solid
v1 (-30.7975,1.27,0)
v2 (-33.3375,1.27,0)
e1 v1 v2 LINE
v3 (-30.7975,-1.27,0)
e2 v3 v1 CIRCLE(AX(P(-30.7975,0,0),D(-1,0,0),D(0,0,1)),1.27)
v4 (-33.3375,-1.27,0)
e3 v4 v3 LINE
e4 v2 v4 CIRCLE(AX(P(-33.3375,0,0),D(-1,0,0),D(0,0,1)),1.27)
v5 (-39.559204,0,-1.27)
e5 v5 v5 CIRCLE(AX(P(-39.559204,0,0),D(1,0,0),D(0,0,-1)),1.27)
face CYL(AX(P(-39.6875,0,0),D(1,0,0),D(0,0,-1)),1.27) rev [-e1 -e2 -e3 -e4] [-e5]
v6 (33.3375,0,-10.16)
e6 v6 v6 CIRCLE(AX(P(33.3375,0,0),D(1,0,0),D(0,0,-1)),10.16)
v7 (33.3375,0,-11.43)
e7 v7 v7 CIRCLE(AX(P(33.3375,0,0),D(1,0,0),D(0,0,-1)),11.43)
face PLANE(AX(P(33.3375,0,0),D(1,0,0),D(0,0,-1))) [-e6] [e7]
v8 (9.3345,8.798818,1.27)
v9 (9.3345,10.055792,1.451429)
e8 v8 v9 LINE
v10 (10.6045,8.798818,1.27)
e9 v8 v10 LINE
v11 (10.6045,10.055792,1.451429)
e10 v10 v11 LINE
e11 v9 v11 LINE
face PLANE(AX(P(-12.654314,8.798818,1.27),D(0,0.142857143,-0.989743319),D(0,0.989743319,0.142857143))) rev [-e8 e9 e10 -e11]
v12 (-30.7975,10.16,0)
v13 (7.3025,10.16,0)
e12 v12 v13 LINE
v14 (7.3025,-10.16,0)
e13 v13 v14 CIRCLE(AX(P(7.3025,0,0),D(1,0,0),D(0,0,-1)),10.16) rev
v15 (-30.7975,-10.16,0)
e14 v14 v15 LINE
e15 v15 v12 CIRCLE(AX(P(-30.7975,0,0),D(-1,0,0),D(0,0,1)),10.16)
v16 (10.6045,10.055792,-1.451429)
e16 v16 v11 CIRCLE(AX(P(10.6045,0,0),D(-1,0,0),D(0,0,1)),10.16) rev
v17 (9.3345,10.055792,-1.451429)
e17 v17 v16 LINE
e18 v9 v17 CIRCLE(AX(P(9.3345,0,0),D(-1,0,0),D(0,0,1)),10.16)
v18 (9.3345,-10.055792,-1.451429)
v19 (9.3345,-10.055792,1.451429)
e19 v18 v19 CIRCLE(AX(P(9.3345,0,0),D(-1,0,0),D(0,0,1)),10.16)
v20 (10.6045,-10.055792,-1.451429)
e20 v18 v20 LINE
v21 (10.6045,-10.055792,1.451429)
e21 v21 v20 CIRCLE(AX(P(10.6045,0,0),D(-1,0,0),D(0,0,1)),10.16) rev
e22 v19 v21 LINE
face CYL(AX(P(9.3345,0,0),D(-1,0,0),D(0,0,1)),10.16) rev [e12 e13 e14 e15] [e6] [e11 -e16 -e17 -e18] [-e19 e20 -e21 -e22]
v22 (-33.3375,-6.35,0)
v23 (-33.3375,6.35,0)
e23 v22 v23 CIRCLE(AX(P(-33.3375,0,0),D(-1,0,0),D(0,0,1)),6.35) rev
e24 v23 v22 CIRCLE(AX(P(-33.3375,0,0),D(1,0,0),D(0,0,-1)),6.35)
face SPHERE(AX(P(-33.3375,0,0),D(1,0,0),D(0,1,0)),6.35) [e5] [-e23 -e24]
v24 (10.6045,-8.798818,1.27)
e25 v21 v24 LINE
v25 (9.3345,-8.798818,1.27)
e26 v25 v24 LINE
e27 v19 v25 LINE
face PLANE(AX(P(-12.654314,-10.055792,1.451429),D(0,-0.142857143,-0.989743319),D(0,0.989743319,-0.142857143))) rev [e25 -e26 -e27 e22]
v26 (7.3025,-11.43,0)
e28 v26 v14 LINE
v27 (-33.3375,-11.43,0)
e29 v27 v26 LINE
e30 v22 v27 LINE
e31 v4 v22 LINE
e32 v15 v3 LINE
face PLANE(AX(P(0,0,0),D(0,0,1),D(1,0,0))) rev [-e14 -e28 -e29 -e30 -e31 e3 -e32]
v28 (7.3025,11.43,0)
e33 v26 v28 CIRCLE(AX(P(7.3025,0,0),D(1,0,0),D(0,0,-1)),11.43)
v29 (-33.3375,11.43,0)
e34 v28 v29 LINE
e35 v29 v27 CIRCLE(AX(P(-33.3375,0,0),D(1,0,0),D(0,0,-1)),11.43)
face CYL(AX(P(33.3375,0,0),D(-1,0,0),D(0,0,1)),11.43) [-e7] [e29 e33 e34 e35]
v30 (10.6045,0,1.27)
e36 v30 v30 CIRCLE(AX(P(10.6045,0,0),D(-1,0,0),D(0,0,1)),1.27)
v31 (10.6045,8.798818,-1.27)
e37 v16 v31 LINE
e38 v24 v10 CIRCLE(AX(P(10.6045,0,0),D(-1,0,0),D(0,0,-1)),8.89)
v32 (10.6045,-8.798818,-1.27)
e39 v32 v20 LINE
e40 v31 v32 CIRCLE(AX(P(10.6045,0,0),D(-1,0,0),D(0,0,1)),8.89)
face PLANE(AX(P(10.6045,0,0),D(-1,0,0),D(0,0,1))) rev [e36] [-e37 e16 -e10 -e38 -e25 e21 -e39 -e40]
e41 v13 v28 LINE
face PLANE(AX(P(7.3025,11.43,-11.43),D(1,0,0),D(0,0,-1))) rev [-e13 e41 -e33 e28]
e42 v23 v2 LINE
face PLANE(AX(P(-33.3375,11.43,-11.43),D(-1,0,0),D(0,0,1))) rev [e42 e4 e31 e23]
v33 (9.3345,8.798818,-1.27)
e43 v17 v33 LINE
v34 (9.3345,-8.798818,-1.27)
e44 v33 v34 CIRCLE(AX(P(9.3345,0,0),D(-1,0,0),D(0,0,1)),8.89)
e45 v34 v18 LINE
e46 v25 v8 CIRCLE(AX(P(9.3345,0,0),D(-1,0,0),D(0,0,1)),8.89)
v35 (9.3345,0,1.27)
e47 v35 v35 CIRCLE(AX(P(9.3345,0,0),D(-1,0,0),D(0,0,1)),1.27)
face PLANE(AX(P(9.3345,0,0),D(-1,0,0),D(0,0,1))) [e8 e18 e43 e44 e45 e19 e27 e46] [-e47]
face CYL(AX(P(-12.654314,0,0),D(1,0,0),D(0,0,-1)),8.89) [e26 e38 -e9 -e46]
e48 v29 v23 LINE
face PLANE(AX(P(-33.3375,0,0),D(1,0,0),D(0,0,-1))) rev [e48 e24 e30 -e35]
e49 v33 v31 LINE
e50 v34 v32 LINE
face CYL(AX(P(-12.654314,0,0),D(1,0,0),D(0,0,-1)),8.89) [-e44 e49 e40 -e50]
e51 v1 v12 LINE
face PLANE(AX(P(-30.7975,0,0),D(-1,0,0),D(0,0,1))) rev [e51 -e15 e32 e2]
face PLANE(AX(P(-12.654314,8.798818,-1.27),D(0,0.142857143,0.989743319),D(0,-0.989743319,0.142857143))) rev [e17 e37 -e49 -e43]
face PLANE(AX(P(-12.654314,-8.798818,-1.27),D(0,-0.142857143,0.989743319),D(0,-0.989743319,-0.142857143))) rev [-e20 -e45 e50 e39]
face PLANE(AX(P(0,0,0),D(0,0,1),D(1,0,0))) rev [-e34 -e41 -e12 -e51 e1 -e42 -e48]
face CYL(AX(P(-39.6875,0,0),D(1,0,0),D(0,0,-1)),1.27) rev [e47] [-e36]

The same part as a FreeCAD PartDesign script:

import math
import FreeCAD as App
import Part
import Sketcher

V = App.Vector
Q = App.Units.Quantity

doc = App.newDocument("Part")
body = doc.addObject("PartDesign::Body", "Body")

# Sketch on YZ plane
sketch1 = doc.addObject("Sketcher::SketchObject", "Sketch")
body.addObject(sketch1)
sketch1.AttachmentSupport = (doc.YZ_Plane, [""])
sketch1.MapMode = "FlatFace"
sketch1.addGeometry(Part.Circle(V(0, 0, 0), V(0, 0, 1), 11.43), False)
sketch1.addConstraint([
    Sketcher.Constraint("Coincident", 0, 3, -1, 1),
    Sketcher.Constraint("Diameter", 0, Q("0.9 in")),
])
pad1 = doc.addObject("PartDesign::Pad", "Pad")
body.addObject(pad1)
pad1.Profile = sketch1
pad1.Length = Q("2.625 in")
pad1.Midplane = True

# Sketch on XY plane
sketch2 = doc.addObject("Sketcher::SketchObject", "Sketch001")
body.addObject(sketch2)
sketch2.AttachmentSupport = (doc.XY_Plane, [""])
sketch2.MapMode = "FlatFace"
sketch2.addGeometry([
    Part.LineSegment(V(-33.3375, 0, 0), V(-33.3375, 6.35, 0)),
    Part.ArcOfCircle(Part.Circle(V(-33.3375, 0, 0), V(0, 0, 1), 6.35), math.radians(90), math.radians(180)),
    Part.LineSegment(V(-39.6875, 0, 0), V(-33.3375, 0, 0)),
], False)
sketch2.addConstraint([
    Sketcher.Constraint("Coincident", 0, 2, 1, 1),
    Sketcher.Constraint("Coincident", 1, 2, 2, 1),
    Sketcher.Constraint("Coincident", 2, 2, 0, 1),
    Sketcher.Constraint("Vertical", 0),
    Sketcher.Constraint("Horizontal", 2),
    Sketcher.Constraint("Coincident", 2, 2, 1, 3),
    Sketcher.Constraint("PointOnObject", 1, 3, -1),
    Sketcher.Constraint("Radius", 1, Q("0.25 in")),
    Sketcher.Constraint("DistanceX", 1, 3, -1, 1, Q("1.3125 in")),
])
revolution = doc.addObject("PartDesign::Revolution", "Revolution")
body.addObject(revolution)
revolution.Profile = sketch2
revolution.ReferenceAxis = (sketch2, ["H_Axis"])
revolution.Angle = 360

# Sketch on YZ plane
sketch3 = doc.addObject("Sketcher::SketchObject", "Sketch002")
body.addObject(sketch3)
sketch3.AttachmentSupport = (doc.YZ_Plane, [""])
sketch3.MapMode = "FlatFace"
sketch3.AttachmentOffset = App.Placement(V(0, 0, -1.3125 * 25.4), App.Rotation())
sketch3.addGeometry(Part.Circle(V(0, 0, 0), V(0, 0, 1), 1.27), False)
sketch3.addConstraint([
    Sketcher.Constraint("Coincident", 0, 3, -1, 1),
    Sketcher.Constraint("Diameter", 0, Q("0.1 in")),
])
pocket1 = doc.addObject("PartDesign::Pocket", "Pocket")
body.addObject(pocket1)
pocket1.Profile = sketch3
pocket1.Type = "ThroughAll"
pocket1.Midplane = True

# Sketch on YZ plane
sketch4 = doc.addObject("Sketcher::SketchObject", "Sketch003")
body.addObject(sketch4)
sketch4.AttachmentSupport = (doc.YZ_Plane, [""])
sketch4.MapMode = "FlatFace"
sketch4.AttachmentOffset = App.Placement(V(0, 0, -1.2125 * 25.4), App.Rotation())
sketch4.addGeometry(Part.Circle(V(0, 0, 0), V(0, 0, 1), 10.16), False)
sketch4.addConstraint([
    Sketcher.Constraint("Coincident", 0, 3, -1, 1),
    Sketcher.Constraint("Diameter", 0, Q("0.8 in")),
])
pocket2 = doc.addObject("PartDesign::Pocket", "Pocket001")
body.addObject(pocket2)
pocket2.Profile = sketch4
pocket2.Length = Q("1.58 in")
pocket2.Reversed = True

# Sketch on YZ plane
sketch5 = doc.addObject("Sketcher::SketchObject", "Sketch004")
body.addObject(sketch5)
sketch5.AttachmentSupport = (doc.YZ_Plane, [""])
sketch5.MapMode = "FlatFace"
sketch5.AttachmentOffset = App.Placement(V(0, 0, 0.4175 * 25.4), App.Rotation())
sketch5.addGeometry(Part.Circle(V(0, 0, 0), V(0, 0, 1), 10.16), False)
sketch5.addConstraint([
    Sketcher.Constraint("Coincident", 0, 3, -1, 1),
    Sketcher.Constraint("Diameter", 0, Q("0.8 in")),
])
pocket3 = doc.addObject("PartDesign::Pocket", "Pocket002")
body.addObject(pocket3)
pocket3.Profile = sketch5
pocket3.Length = Q("0.895 in")
pocket3.Reversed = True

# Sketch on YZ plane
sketch6 = doc.addObject("Sketcher::SketchObject", "Sketch005")
body.addObject(sketch6)
sketch6.AttachmentSupport = (doc.YZ_Plane, [""])
sketch6.MapMode = "FlatFace"
sketch6.AttachmentOffset = App.Placement(V(0, 0, 0.3675 * 25.4), App.Rotation())
sketch6.addGeometry([
    Part.LineSegment(V(8.798818, 1.27, 0), V(10.055792, 1.451429, 0)),  # 0
    Part.ArcOfCircle(Part.Circle(V(0, 0, 0), V(0, 0, 1), 10.16), math.radians(8.213211), math.radians(171.786789)),  # 1
    Part.LineSegment(V(-10.055792, 1.451429, 0), V(-8.798818, 1.27, 0)),  # 2
    Part.ArcOfCircle(Part.Circle(V(0, 0, 0), V(0, 0, 1), 8.89), math.radians(8.213211), math.radians(171.786789)),  # 3
    Part.LineSegment(V(10.055792, -1.451429, 0), V(8.798818, -1.27, 0)),  # 4
    Part.ArcOfCircle(Part.Circle(V(0, 0, 0), V(0, 0, 1), 8.89), math.radians(-171.786789), math.radians(-8.213211)),  # 5
    Part.LineSegment(V(-8.798818, -1.27, 0), V(-10.055792, -1.451429, 0)),  # 6
    Part.ArcOfCircle(Part.Circle(V(0, 0, 0), V(0, 0, 1), 10.16), math.radians(-171.786789), math.radians(-8.213211)),  # 7
], False)
sketch6.addConstraint([
    Sketcher.Constraint("Coincident", 0, 2, 1, 1),
    Sketcher.Constraint("Coincident", 1, 2, 2, 1),
    Sketcher.Constraint("Coincident", 2, 2, 3, 2),
    Sketcher.Constraint("Coincident", 3, 1, 0, 1),
    Sketcher.Constraint("Coincident", 4, 2, 5, 2),
    Sketcher.Constraint("Coincident", 5, 1, 6, 1),
    Sketcher.Constraint("Coincident", 6, 2, 7, 1),
    Sketcher.Constraint("Coincident", 7, 2, 4, 1),
    Sketcher.Constraint("Coincident", 1, 3, -1, 1),
    Sketcher.Constraint("Coincident", 3, 3, -1, 1),
    Sketcher.Constraint("Coincident", 5, 3, -1, 1),
    Sketcher.Constraint("Coincident", 7, 3, -1, 1),
    Sketcher.Constraint("Equal", 3, 5),
    Sketcher.Constraint("Equal", 1, 7),
    Sketcher.Constraint("Parallel", 2, 4),
    Sketcher.Constraint("Parallel", 0, 6),
    Sketcher.Constraint("Horizontal", 0, 2, 1, 2),
    Sketcher.Constraint("Horizontal", 2, 2, 3, 1),
    Sketcher.Constraint("Horizontal", 4, 2, 5, 1),
    Sketcher.Constraint("Vertical", 3, 1, 4, 2),
    Sketcher.Constraint("Radius", 1, Q("0.4 in")),
    Sketcher.Constraint("Radius", 3, Q("0.35 in")),
    Sketcher.Constraint("DistanceY", 4, 2, 3, 1, Q("0.1 in")),
    Sketcher.Constraint("DistanceY", -1, 1, 0, 2, 1.451429),
])
pocket4 = doc.addObject("PartDesign::Pocket", "Pocket003")
body.addObject(pocket4)
pocket4.Profile = sketch6
pocket4.Length = Q("0.05 in")
pocket4.Reversed = True

# Sketch on XY plane
sketch7 = doc.addObject("Sketcher::SketchObject", "Sketch006")
body.addObject(sketch7)
sketch7.AttachmentSupport = (doc.XY_Plane, [""])
sketch7.MapMode = "FlatFace"
sketch7.addGeometry([
    Part.LineSegment(V(-33.3375, 11.43, 0), V(-33.3375, -11.43, 0)),
    Part.LineSegment(V(-33.3375, -11.43, 0), V(7.3025, -11.43, 0)),
    Part.LineSegment(V(7.3025, -11.43, 0), V(7.3025, 11.43, 0)),
    Part.LineSegment(V(7.3025, 11.43, 0), V(-33.3375, 11.43, 0)),
], False)
sketch7.addConstraint([
    Sketcher.Constraint("Coincident", 0, 2, 1, 1),
    Sketcher.Constraint("Coincident", 1, 2, 2, 1),
    Sketcher.Constraint("Coincident", 2, 2, 3, 1),
    Sketcher.Constraint("Coincident", 3, 2, 0, 1),
    Sketcher.Constraint("Vertical", 0),
    Sketcher.Constraint("Horizontal", 1),
    Sketcher.Constraint("Vertical", 2),
    Sketcher.Constraint("Horizontal", 3),
    Sketcher.Constraint("DistanceX", 1, 1, 1, 2, Q("1.6 in")),
    Sketcher.Constraint("DistanceY", 0, 2, 0, 1, Q("0.9 in")),
    Sketcher.Constraint("DistanceY", 0, 2, -1, 1, Q("0.45 in")),
    Sketcher.Constraint("DistanceX", 0, 2, -1, 1, Q("1.3125 in")),
])
pocket5 = doc.addObject("PartDesign::Pocket", "Pocket004")
body.addObject(pocket5)
pocket5.Profile = sketch7
pocket5.Type = "ThroughAll"

doc.recompute()
